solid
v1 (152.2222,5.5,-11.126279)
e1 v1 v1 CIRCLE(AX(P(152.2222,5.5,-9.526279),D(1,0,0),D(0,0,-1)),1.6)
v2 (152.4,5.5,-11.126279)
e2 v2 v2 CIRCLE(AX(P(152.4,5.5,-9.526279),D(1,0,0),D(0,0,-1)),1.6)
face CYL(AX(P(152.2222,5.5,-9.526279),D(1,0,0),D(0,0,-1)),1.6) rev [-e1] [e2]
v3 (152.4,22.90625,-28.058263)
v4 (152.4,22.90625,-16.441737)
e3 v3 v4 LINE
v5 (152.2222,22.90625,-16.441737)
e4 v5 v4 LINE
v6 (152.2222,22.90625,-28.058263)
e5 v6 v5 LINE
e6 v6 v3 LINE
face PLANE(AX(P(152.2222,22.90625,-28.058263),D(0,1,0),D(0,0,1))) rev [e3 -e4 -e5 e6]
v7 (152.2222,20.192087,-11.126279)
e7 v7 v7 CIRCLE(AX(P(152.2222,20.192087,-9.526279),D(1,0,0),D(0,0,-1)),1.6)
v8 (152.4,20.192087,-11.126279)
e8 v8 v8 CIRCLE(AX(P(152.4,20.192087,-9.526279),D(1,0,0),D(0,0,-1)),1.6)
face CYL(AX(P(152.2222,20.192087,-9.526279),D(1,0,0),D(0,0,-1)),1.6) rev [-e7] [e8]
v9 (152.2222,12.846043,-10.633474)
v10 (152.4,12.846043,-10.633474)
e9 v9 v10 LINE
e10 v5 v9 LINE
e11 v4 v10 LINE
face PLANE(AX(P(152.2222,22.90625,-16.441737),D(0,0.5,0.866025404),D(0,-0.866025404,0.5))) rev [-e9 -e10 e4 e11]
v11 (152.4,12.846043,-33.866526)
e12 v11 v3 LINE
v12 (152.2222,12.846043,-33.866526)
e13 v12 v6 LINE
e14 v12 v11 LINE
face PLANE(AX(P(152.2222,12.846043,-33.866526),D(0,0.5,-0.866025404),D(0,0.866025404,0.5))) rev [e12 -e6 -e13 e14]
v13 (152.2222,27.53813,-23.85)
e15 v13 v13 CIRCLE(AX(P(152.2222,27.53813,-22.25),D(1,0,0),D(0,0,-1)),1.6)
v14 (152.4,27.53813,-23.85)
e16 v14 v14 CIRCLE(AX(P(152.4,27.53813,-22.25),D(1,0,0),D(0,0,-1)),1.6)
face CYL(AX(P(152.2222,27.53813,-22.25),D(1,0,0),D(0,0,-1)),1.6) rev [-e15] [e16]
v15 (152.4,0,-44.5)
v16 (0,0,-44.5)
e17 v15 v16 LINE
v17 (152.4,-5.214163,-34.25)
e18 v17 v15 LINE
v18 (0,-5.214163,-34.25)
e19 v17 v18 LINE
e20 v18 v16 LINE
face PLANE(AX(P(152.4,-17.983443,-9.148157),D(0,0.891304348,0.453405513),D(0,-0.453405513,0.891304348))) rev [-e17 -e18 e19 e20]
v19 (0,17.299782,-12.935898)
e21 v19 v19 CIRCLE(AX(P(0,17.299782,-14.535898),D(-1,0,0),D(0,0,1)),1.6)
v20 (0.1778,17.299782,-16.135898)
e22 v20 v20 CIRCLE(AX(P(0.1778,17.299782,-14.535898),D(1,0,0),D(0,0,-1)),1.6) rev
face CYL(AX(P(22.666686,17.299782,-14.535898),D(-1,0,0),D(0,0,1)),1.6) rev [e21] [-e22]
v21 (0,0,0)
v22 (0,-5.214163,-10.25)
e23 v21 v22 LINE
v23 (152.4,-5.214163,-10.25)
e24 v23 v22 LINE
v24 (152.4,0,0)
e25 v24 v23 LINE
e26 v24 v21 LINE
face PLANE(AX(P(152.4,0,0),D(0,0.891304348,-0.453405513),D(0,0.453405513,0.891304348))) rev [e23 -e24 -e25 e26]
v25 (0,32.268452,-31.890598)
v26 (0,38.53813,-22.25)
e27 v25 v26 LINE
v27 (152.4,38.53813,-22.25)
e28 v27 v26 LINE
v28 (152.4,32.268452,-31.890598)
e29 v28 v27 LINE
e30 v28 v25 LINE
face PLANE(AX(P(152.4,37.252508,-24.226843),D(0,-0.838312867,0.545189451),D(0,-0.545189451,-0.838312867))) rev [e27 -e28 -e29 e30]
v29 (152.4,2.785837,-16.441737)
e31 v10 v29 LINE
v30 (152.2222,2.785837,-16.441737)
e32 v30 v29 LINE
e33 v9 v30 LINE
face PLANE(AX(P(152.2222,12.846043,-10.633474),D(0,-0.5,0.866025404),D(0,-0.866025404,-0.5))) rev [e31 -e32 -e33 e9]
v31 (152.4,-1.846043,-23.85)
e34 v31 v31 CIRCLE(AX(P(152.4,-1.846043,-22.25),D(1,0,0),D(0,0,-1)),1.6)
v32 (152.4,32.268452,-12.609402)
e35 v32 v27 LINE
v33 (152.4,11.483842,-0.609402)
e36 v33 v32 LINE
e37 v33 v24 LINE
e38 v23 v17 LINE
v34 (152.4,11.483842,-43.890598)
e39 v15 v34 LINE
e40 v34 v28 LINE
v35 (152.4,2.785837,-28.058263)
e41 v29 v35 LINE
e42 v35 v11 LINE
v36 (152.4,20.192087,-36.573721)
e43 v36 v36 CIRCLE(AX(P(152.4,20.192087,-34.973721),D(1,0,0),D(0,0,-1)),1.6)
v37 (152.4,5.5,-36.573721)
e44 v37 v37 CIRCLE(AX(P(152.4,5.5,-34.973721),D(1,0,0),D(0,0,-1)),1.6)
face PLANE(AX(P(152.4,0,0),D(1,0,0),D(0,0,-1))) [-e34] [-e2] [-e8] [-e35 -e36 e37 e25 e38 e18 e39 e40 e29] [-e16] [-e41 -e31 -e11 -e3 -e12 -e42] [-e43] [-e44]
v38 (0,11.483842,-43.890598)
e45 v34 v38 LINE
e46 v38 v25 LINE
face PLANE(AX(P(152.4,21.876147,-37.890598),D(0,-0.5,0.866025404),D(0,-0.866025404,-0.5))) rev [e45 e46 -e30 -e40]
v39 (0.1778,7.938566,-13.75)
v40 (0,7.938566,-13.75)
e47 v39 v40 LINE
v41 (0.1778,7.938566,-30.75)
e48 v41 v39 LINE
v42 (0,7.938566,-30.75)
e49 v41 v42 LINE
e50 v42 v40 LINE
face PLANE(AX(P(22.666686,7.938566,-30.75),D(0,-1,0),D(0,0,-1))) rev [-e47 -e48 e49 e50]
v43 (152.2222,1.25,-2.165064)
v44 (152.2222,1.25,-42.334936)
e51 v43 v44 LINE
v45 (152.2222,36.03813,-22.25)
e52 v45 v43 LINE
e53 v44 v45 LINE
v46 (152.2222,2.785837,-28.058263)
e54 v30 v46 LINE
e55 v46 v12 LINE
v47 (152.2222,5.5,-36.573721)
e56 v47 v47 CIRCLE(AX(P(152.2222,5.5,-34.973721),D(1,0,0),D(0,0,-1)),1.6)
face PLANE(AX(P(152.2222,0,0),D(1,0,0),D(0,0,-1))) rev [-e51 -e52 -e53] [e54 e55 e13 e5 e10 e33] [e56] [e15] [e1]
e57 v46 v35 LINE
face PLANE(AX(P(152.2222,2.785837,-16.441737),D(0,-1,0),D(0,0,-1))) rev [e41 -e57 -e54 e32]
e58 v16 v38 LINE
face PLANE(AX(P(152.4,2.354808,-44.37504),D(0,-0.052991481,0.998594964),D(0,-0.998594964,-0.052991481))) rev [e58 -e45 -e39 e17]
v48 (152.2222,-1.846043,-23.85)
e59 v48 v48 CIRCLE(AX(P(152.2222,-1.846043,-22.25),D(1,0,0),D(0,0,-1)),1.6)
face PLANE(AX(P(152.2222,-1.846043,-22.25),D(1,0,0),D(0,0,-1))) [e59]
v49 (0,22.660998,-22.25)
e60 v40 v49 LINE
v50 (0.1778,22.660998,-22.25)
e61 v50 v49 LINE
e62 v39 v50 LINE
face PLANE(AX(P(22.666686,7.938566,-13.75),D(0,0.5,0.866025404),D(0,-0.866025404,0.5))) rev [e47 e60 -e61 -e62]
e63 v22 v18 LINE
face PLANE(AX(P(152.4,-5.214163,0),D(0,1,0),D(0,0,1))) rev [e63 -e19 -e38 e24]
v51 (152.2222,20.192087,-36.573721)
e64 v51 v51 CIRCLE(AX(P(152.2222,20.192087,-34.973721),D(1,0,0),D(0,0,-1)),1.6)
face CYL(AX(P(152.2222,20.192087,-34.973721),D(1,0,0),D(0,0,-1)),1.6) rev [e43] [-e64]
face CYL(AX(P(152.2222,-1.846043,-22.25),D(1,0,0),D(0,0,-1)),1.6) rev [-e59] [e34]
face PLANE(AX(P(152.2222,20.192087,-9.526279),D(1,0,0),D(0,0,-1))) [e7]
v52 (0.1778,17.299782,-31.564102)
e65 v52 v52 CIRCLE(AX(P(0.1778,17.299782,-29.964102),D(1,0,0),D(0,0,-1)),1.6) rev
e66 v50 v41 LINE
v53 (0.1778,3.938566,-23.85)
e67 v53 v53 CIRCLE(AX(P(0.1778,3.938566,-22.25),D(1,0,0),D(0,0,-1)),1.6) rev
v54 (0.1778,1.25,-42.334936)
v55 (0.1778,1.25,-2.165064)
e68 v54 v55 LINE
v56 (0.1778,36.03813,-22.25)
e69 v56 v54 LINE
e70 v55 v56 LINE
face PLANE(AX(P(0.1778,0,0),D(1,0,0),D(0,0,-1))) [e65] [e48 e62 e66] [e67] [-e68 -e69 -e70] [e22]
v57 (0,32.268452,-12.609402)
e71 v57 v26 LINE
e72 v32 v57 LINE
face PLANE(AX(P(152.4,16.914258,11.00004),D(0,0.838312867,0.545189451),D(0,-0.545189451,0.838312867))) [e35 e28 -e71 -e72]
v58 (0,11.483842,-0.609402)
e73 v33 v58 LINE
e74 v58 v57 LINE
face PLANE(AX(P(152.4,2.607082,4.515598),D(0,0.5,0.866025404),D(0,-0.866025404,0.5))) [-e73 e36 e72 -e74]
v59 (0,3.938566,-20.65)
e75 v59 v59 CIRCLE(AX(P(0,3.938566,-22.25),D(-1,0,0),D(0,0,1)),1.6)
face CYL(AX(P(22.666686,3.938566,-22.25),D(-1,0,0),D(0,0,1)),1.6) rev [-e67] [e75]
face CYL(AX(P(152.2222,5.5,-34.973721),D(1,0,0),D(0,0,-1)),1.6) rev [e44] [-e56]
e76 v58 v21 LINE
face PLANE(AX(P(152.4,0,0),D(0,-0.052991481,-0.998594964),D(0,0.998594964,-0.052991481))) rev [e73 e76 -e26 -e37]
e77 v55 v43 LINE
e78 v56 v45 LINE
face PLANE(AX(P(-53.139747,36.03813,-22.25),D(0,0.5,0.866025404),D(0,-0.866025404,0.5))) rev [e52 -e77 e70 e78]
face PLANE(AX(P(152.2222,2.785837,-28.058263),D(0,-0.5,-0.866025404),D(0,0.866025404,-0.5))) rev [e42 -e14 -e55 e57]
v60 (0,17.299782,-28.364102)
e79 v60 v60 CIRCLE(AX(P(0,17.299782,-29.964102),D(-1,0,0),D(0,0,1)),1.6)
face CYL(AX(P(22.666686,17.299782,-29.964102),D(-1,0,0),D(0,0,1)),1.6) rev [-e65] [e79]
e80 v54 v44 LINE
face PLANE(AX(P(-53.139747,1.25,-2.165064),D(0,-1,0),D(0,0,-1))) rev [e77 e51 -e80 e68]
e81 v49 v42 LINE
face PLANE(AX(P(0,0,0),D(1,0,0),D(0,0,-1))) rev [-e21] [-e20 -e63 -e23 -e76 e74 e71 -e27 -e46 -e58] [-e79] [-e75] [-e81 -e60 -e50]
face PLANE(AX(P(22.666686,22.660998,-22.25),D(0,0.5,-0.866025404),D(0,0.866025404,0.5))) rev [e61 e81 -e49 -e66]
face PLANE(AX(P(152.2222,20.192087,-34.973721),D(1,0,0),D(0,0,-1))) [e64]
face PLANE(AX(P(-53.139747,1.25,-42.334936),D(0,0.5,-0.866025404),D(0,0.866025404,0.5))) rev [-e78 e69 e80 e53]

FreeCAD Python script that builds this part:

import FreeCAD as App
import Part
import Sketcher
from FreeCAD import Vector
Q = App.Units.Quantity


def add_polygon(sketch, points):
    """Adds a closed chain of lines whose ends are joined by coincident constraints."""
    first, n = sketch.GeometryCount, len(points)
    for a, b in zip(points, points[1:] + points[:1]):
        sketch.addGeometry(Part.LineSegment(App.Vector(*a, 0), App.Vector(*b, 0)), False)
    for i in range(n):
        sketch.addConstraint(Sketcher.Constraint("Coincident", first + i, 2, first + (i + 1) % n, 1))

doc = App.newDocument("Part")
body = doc.addObject("PartDesign::Body", "Body")

sketch1 = body.newObject("Sketcher::SketchObject", "Sketch")
sketch1.AttachmentSupport = (doc.getObject("YZ_Plane"), [""])
sketch1.MapMode = "FlatFace"
add_polygon(sketch1, [(11.483842, -43.890598), (32.268452, -31.890598), (38.53813, -22.25), (32.268452, -12.609402), (11.483842, -0.609402), (0, 0), (-5.214163, -10.25), (-5.214163, -34.25), (0, -44.5)])
sketch1.addConstraint([
    Sketcher.Constraint("Vertical", 6),
    Sketcher.Constraint("Coincident", 4, 2, -1, 1),
    Sketcher.Constraint("PointOnObject", 7, 2, -2),
    Sketcher.Constraint("Vertical", 0, 2, 2, 2),
    Sketcher.Constraint("Vertical", 3, 2, 8, 2),
    Sketcher.Constraint("Equal", 1, 2),
    Sketcher.Constraint("Equal", 0, 3),
    Sketcher.Constraint("Equal", 2, 4),
    Sketcher.Constraint("Equal", 4, 5),
    Sketcher.Constraint("Equal", 5, 7),
    Sketcher.Constraint("Equal", 7, 8),
    Sketcher.Constraint("DistanceY", 6, 2, 6, 1, Q("24 mm")),
    Sketcher.Constraint("Angle", 0, Q("30 deg")),
    Sketcher.Constraint("Distance", 0, Q("24 mm")),
    Sketcher.Constraint("Distance", 1, Q("11.5 mm")),
    Sketcher.Constraint("DistanceY", 7, 2, -1, 1, Q("44.5 mm")),
    Sketcher.Constraint("DistanceX", -1, 1, 0, 2, Q("32.268452 mm")),
])
pad1 = body.newObject("PartDesign::Pad", "Pad")
pad1.Profile = sketch1
pad1.Length = 152.4

sketch2 = body.newObject("Sketcher::SketchObject", "Sketch001")
sketch2.AttachmentSupport = (doc.getObject("YZ_Plane"), [""])
sketch2.MapMode = "FlatFace"
sketch2.AttachmentOffset = App.Placement(Vector(0, 0, 152.4), App.Rotation())
sketch2.addGeometry(Part.Circle(Vector(27.53813, -22.25, 0), Vector(0, 0, 1), 1.6), False)
sketch2.addGeometry(Part.Circle(Vector(20.192087, -34.973721, 0), Vector(0, 0, 1), 1.6), False)
sketch2.addGeometry(Part.Circle(Vector(5.5, -34.973721, 0), Vector(0, 0, 1), 1.6), False)
sketch2.addGeometry(Part.Circle(Vector(-1.846043, -22.25, 0), Vector(0, 0, 1), 1.6), False)
sketch2.addGeometry(Part.Circle(Vector(5.5, -9.526279, 0), Vector(0, 0, 1), 1.6), False)
sketch2.addGeometry(Part.Circle(Vector(20.192087, -9.526279, 0), Vector(0, 0, 1), 1.6), False)
add_polygon(sketch2, [(22.90625, -16.441737), (12.846043, -10.633474), (2.785837, -16.441737), (2.785837, -28.058263), (12.846043, -33.866526), (22.90625, -28.058263)])
sketch2.addConstraint([
    Sketcher.Constraint("Vertical", 8),
    Sketcher.Constraint("Vertical", 11),
    Sketcher.Constraint("Equal", 0, 1),
    Sketcher.Constraint("Equal", 1, 2),
    Sketcher.Constraint("Equal", 2, 3),
    Sketcher.Constraint("Equal", 3, 4),
    Sketcher.Constraint("Equal", 4, 5),
    Sketcher.Constraint("Parallel", 6, 9),
    Sketcher.Constraint("Parallel", 7, 10),
    Sketcher.Constraint("Horizontal", 1, 3, 2, 3),
    Sketcher.Constraint("Horizontal", 0, 3, 3, 3),
    Sketcher.Constraint("Horizontal", 4, 3, 5, 3),
    Sketcher.Constraint("Horizontal", 8, 2, 10, 2),
    Sketcher.Constraint("Horizontal", 7, 2, 11, 2),
    Sketcher.Constraint("Vertical", 2, 3, 4, 3),
    Sketcher.Constraint("Vertical", 1, 3, 5, 3),
    Sketcher.Constraint("Vertical", 6, 2, 9, 2),
    Sketcher.Constraint("Diameter", 0, Q("3.2 mm")),
    Sketcher.Constraint("Angle", 6, Q("150 deg")),
    Sketcher.Constraint("DistanceX", -1, 1, 2, 3, Q("5.5 mm")),
    Sketcher.Constraint("DistanceY", 0, 3, -1, 1, Q("22.25 mm")),
    Sketcher.Constraint("DistanceY", 8, 2, 8, 1, Q("11.616526 mm")),
    Sketcher.Constraint("DistanceX", -1, 1, 0, 3, Q("27.53813 mm")),
    Sketcher.Constraint("DistanceY", 1, 3, -1, 1, Q("34.973721 mm")),
    Sketcher.Constraint("DistanceY", 4, 3, -1, 1, Q("9.526279 mm")),
    Sketcher.Constraint("DistanceX", -1, 1, 10, 2, Q("22.90625 mm")),
    Sketcher.Constraint("DistanceX", 3, 3, 1, 3, Q("22.03813 mm")),
    Sketcher.Constraint("DistanceX", 3, 3, 7, 2, Q("4.63188 mm")),
    Sketcher.Constraint("Distance", 6, Q("11.616526 mm")),
    Sketcher.Constraint("DistanceY", 6, 2, -1, 1, Q("10.633474 mm")),
])
pocket1 = body.newObject("PartDesign::Pocket", "Pocket")
pocket1.Profile = sketch2
pocket1.Length = 0.1778

sketch3 = body.newObject("Sketcher::SketchObject", "Sketch002")
sketch3.AttachmentSupport = (doc.getObject("YZ_Plane"), [""])
sketch3.MapMode = "FlatFace"
sketch3.AttachmentOffset = App.Placement(Vector(0, 0, 152.2222), App.Rotation())
add_polygon(sketch3, [(36.03813, -22.25), (1.25, -2.165064), (1.25, -42.334936)])
sketch3.addConstraint([
    Sketcher.Constraint("Vertical", 1),
    Sketcher.Constraint("Equal", 0, 2),
    Sketcher.Constraint("Angle", 0, Q("150 deg")),
    Sketcher.Constraint("DistanceX", -1, 1, 0, 2, Q("1.25 mm")),
    Sketcher.Constraint("DistanceY", 2, 2, -1, 1, Q("22.25 mm")),
    Sketcher.Constraint("DistanceY", 1, 2, 1, 1, Q("40.169873 mm")),
])
pocket2 = body.newObject("PartDesign::Pocket", "Pocket001")
pocket2.Profile = sketch3
pocket2.Length = 152.0444

sketch4 = body.newObject("Sketcher::SketchObject", "Sketch003")
sketch4.AttachmentSupport = (doc.getObject("YZ_Plane"), [""])
sketch4.MapMode = "FlatFace"
sketch4.addGeometry(Part.Circle(Vector(17.299782, -29.964102, 0), Vector(0, 0, 1), 1.6), False)
sketch4.addGeometry(Part.Circle(Vector(17.299782, -14.535898, 0), Vector(0, 0, 1), 1.6), False)
sketch4.addGeometry(Part.Circle(Vector(3.938566, -22.25, 0), Vector(0, 0, 1), 1.6), False)
add_polygon(sketch4, [(22.660998, -22.25), (7.938566, -30.75), (7.938566, -13.75)])
sketch4.addConstraint([
    Sketcher.Constraint("Vertical", 4),
    Sketcher.Constraint("Equal", 0, 1),
    Sketcher.Constraint("Equal", 1, 2),
    Sketcher.Constraint("Horizontal", 2, 3, 5, 2),
    Sketcher.Constraint("Vertical", 0, 3, 1, 3),
    Sketcher.Constraint("Equal", 3, 5),
    Sketcher.Constraint("Diameter", 0, Q("3.2 mm")),
    Sketcher.Constraint("DistanceY", 4, 1, 4, 2, Q("17 mm")),
    Sketcher.Constraint("Angle", 3, Q("-150 deg")),
    Sketcher.Constraint("DistanceX", 2, 3, 3, 2, Q("4 mm")),
    Sketcher.Constraint("DistanceY", 2, 3, -1, 1, Q("22.25 mm")),
    Sketcher.Constraint("DistanceX", -1, 1, 5, 2, Q("22.660998 mm")),
    Sketcher.Constraint("DistanceY", 0, 3, -1, 1, Q("29.964102 mm")),
    Sketcher.Constraint("DistanceY", 1, 3, -1, 1, Q("14.535898 mm")),
    Sketcher.Constraint("DistanceX", -1, 1, 0, 3, Q("17.299782 mm")),
])
pocket3 = body.newObject("PartDesign::Pocket", "Pocket002")
pocket3.Profile = sketch4
pocket3.Length = 0.1778
pocket3.Reversed = True

doc.recompute()
